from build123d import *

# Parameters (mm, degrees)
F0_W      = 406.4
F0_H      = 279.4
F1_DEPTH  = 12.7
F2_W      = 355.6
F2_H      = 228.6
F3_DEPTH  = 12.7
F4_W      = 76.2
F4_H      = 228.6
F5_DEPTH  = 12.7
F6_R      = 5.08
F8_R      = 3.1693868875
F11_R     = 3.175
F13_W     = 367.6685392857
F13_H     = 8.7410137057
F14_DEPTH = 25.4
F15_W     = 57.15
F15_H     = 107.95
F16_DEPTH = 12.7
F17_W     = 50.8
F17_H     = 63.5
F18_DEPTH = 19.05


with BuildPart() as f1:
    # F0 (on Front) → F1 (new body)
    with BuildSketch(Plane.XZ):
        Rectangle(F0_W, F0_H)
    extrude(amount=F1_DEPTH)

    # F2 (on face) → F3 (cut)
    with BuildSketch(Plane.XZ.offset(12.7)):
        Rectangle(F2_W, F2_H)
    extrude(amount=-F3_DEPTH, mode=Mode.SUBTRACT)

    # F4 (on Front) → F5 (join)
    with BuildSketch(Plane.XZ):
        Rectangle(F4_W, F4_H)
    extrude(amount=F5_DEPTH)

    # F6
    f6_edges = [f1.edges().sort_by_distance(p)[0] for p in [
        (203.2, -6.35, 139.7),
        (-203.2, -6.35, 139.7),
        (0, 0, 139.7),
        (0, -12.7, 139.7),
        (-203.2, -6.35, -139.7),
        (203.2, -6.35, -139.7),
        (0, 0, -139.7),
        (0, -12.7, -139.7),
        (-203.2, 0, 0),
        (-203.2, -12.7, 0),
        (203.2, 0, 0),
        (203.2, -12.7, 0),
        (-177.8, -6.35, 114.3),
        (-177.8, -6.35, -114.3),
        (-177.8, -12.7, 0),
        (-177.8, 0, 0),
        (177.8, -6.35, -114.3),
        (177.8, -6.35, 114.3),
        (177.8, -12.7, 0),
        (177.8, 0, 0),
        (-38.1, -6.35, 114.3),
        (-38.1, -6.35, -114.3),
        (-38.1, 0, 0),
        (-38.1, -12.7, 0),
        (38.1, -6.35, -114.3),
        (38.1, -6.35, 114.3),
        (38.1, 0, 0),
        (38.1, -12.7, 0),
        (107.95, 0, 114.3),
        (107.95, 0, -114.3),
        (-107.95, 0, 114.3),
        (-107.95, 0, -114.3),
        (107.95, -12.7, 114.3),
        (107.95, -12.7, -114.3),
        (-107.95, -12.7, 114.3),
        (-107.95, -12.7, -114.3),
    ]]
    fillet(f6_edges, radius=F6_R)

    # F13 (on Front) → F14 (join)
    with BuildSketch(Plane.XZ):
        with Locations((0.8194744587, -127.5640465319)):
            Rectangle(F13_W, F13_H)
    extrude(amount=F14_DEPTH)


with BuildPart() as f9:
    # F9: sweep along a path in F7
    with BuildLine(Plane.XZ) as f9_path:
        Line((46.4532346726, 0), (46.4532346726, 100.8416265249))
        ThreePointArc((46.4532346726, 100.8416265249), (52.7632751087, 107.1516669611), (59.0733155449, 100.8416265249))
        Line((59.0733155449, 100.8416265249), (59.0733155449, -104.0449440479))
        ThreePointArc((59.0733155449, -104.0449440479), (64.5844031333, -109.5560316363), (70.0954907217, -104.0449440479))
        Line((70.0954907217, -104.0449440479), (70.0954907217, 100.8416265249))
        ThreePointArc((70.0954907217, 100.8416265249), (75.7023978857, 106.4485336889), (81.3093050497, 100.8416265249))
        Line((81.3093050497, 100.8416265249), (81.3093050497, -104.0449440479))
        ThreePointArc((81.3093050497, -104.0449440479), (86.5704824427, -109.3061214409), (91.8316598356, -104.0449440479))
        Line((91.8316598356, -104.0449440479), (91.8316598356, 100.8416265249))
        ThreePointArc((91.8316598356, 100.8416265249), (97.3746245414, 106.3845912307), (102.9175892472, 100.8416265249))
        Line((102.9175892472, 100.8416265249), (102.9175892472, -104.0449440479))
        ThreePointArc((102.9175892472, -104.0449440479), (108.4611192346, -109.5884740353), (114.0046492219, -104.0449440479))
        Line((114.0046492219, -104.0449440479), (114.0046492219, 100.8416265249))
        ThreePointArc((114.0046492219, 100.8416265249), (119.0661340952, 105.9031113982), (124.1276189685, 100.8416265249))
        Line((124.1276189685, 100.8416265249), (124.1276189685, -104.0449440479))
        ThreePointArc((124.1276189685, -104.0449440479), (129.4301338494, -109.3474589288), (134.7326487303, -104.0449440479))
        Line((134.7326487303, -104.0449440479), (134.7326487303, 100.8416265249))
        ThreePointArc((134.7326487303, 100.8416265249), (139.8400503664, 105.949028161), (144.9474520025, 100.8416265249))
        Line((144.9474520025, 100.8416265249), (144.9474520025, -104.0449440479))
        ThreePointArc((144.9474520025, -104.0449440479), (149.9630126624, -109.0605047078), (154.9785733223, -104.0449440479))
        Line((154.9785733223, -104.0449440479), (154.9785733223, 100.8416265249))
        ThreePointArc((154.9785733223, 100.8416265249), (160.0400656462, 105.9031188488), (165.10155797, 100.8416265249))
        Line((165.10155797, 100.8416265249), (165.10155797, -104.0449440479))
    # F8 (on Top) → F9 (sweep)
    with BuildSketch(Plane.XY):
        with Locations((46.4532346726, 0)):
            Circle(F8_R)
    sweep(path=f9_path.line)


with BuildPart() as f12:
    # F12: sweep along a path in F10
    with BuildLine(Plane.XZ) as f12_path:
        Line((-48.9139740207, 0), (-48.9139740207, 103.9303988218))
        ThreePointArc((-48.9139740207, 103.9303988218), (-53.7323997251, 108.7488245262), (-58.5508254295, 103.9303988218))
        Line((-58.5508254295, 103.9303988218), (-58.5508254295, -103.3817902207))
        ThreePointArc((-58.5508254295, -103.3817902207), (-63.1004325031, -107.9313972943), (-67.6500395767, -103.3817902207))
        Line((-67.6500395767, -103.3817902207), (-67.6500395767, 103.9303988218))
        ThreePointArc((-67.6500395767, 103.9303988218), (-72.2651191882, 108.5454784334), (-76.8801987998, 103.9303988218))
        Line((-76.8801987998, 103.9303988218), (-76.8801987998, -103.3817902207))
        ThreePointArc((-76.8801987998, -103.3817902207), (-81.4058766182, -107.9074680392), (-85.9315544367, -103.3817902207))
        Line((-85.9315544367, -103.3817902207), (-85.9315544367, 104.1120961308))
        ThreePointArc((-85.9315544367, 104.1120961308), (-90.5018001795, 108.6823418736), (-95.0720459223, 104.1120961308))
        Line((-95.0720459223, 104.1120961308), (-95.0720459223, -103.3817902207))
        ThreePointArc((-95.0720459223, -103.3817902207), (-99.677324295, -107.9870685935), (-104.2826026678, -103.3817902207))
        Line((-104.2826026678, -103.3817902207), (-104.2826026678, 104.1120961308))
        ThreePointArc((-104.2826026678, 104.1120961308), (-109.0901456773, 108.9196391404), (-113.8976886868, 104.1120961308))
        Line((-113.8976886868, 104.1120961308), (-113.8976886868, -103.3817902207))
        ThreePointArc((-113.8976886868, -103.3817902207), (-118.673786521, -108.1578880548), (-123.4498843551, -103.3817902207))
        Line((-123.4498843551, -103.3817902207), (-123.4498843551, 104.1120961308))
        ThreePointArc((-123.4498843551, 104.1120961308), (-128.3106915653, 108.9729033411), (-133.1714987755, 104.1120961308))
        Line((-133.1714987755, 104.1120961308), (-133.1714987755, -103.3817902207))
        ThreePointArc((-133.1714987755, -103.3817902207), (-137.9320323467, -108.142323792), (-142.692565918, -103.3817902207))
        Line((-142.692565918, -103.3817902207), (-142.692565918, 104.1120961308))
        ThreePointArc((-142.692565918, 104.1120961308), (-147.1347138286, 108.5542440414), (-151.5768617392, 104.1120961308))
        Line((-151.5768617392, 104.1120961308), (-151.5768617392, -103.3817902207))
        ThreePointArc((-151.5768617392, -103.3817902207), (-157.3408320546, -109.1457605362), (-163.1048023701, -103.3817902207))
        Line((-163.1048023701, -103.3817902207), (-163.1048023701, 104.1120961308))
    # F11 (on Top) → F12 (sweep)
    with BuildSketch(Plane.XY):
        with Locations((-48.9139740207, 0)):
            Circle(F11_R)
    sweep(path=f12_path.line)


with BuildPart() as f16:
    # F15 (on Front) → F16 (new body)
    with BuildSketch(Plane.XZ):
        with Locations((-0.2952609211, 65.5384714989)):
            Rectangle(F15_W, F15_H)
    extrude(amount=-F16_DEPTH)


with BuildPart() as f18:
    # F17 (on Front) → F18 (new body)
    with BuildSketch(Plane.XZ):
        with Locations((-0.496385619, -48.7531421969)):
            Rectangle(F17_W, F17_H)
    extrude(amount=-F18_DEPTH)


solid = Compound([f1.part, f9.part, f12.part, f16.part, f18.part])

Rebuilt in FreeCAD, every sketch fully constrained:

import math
import FreeCAD as App
import Part
import Sketcher
Q = App.Units.Quantity

doc = App.newDocument("Part")
body = doc.addObject("PartDesign::Body", "Body")

# Sketch on XZ plane
sketch1 = doc.addObject("Sketcher::SketchObject", "Sketch")
body.addObject(sketch1)
sketch1.AttachmentSupport = (doc.XZ_Plane, [""])
sketch1.MapMode = "FlatFace"
sketch1.addGeometry(Part.LineSegment(App.Vector(-203.2, 139.7, 0), App.Vector(-203.2, -139.7, 0)), False)
sketch1.addGeometry(Part.LineSegment(App.Vector(-203.2, -139.7, 0), App.Vector(203.2, -139.7, 0)), False)
sketch1.addGeometry(Part.LineSegment(App.Vector(203.2, -139.7, 0), App.Vector(203.2, 139.7, 0)), False)
sketch1.addGeometry(Part.LineSegment(App.Vector(203.2, 139.7, 0), App.Vector(-203.2, 139.7, 0)), False)
sketch1.addConstraint(Sketcher.Constraint("Coincident", 0, 2, 1, 1))
sketch1.addConstraint(Sketcher.Constraint("Coincident", 1, 2, 2, 1))
sketch1.addConstraint(Sketcher.Constraint("Coincident", 2, 2, 3, 1))
sketch1.addConstraint(Sketcher.Constraint("Coincident", 3, 2, 0, 1))
sketch1.addConstraint(Sketcher.Constraint("Vertical", 0))
sketch1.addConstraint(Sketcher.Constraint("Horizontal", 1))
sketch1.addConstraint(Sketcher.Constraint("Vertical", 2))
sketch1.addConstraint(Sketcher.Constraint("Horizontal", 3))
sketch1.addConstraint(Sketcher.Constraint("Symmetric", 0, 2, 2, 2, -1, 1))
sketch1.addConstraint(Sketcher.Constraint("DistanceX", 1, 1, 1, 2, Q("16 in")))
sketch1.addConstraint(Sketcher.Constraint("DistanceY", 0, 2, 0, 1, Q("11 in")))
pad1 = doc.addObject("PartDesign::Pad", "Pad")
body.addObject(pad1)
pad1.Profile = sketch1
pad1.Length = Q("0.5 in")

# Sketch on XZ plane
sketch2 = doc.addObject("Sketcher::SketchObject", "Sketch001")
body.addObject(sketch2)
sketch2.AttachmentSupport = (doc.XZ_Plane, [""])
sketch2.MapMode = "FlatFace"
sketch2.AttachmentOffset = App.Placement(App.Vector(0, 0, 0.5 * 25.4), App.Rotation())
sketch2.addGeometry(Part.LineSegment(App.Vector(-177.8, 114.3, 0), App.Vector(-177.8, -114.3, 0)), False)
sketch2.addGeometry(Part.LineSegment(App.Vector(-177.8, -114.3, 0), App.Vector(177.8, -114.3, 0)), False)
sketch2.addGeometry(Part.LineSegment(App.Vector(177.8, -114.3, 0), App.Vector(177.8, 114.3, 0)), False)
sketch2.addGeometry(Part.LineSegment(App.Vector(177.8, 114.3, 0), App.Vector(-177.8, 114.3, 0)), False)
sketch2.addConstraint(Sketcher.Constraint("Coincident", 0, 2, 1, 1))
sketch2.addConstraint(Sketcher.Constraint("Coincident", 1, 2, 2, 1))
sketch2.addConstraint(Sketcher.Constraint("Coincident", 2, 2, 3, 1))
sketch2.addConstraint(Sketcher.Constraint("Coincident", 3, 2, 0, 1))
sketch2.addConstraint(Sketcher.Constraint("Vertical", 0))
sketch2.addConstraint(Sketcher.Constraint("Horizontal", 1))
sketch2.addConstraint(Sketcher.Constraint("Vertical", 2))
sketch2.addConstraint(Sketcher.Constraint("Horizontal", 3))
sketch2.addConstraint(Sketcher.Constraint("Symmetric", 0, 2, 2, 2, -1, 1))
sketch2.addConstraint(Sketcher.Constraint("DistanceX", 1, 1, 1, 2, Q("14 in")))
sketch2.addConstraint(Sketcher.Constraint("DistanceY", 0, 2, 0, 1, Q("9 in")))
pocket1 = doc.addObject("PartDesign::Pocket", "Pocket")
body.addObject(pocket1)
pocket1.Profile = sketch2
pocket1.Length = Q("0.5 in")

# Sketch on XZ plane
sketch3 = doc.addObject("Sketcher::SketchObject", "Sketch002")
body.addObject(sketch3)
sketch3.AttachmentSupport = (doc.XZ_Plane, [""])
sketch3.MapMode = "FlatFace"
sketch3.addGeometry(Part.LineSegment(App.Vector(-38.1, 114.3, 0), App.Vector(-38.1, -114.3, 0)), False)
sketch3.addGeometry(Part.LineSegment(App.Vector(-38.1, -114.3, 0), App.Vector(38.1, -114.3, 0)), False)
sketch3.addGeometry(Part.LineSegment(App.Vector(38.1, -114.3, 0), App.Vector(38.1, 114.3, 0)), False)
sketch3.addGeometry(Part.LineSegment(App.Vector(38.1, 114.3, 0), App.Vector(-38.1, 114.3, 0)), False)
sketch3.addConstraint(Sketcher.Constraint("Coincident", 0, 2, 1, 1))
sketch3.addConstraint(Sketcher.Constraint("Coincident", 1, 2, 2, 1))
sketch3.addConstraint(Sketcher.Constraint("Coincident", 2, 2, 3, 1))
sketch3.addConstraint(Sketcher.Constraint("Coincident", 3, 2, 0, 1))
sketch3.addConstraint(Sketcher.Constraint("Vertical", 0))
sketch3.addConstraint(Sketcher.Constraint("Horizontal", 1))
sketch3.addConstraint(Sketcher.Constraint("Vertical", 2))
sketch3.addConstraint(Sketcher.Constraint("Horizontal", 3))
sketch3.addConstraint(Sketcher.Constraint("Symmetric", 0, 2, 2, 2, -1, 1))
sketch3.addConstraint(Sketcher.Constraint("DistanceX", 1, 1, 1, 2, Q("3 in")))
sketch3.addConstraint(Sketcher.Constraint("DistanceY", 0, 2, 0, 1, Q("9 in")))
pad2 = doc.addObject("PartDesign::Pad", "Pad001")
body.addObject(pad2)
pad2.Profile = sketch3
pad2.Length = Q("0.5 in")
doc.recompute()

fillet = doc.addObject("PartDesign::Fillet", "Fillet")
body.addObject(fillet)
fillet.Base = (pad2, ["Edge1"])
fillet.UseAllEdges = True
fillet.Radius = Q("0.2 in")

# Sketch on XZ plane
sketch4 = doc.addObject("Sketcher::SketchObject", "Sketch003")
body.addObject(sketch4)
sketch4.AttachmentSupport = (doc.XZ_Plane, [""])
sketch4.MapMode = "FlatFace"
sketch4.addGeometry(Part.LineSegment(App.Vector(-183.014795, -123.19354, 0), App.Vector(-183.014795, -131.934553, 0)), False)
sketch4.addGeometry(Part.LineSegment(App.Vector(-183.014795, -131.934553, 0), App.Vector(184.653744, -131.934553, 0)), False)
sketch4.addGeometry(Part.LineSegment(App.Vector(184.653744, -131.934553, 0), App.Vector(184.653744, -123.19354, 0)), False)
sketch4.addGeometry(Part.LineSegment(App.Vector(184.653744, -123.19354, 0), App.Vector(-183.014795, -123.19354, 0)), False)
sketch4.addConstraint(Sketcher.Constraint("Coincident", 0, 2, 1, 1))
sketch4.addConstraint(Sketcher.Constraint("Coincident", 1, 2, 2, 1))
sketch4.addConstraint(Sketcher.Constraint("Coincident", 2, 2, 3, 1))
sketch4.addConstraint(Sketcher.Constraint("Coincident", 3, 2, 0, 1))
sketch4.addConstraint(Sketcher.Constraint("Vertical", 0))
sketch4.addConstraint(Sketcher.Constraint("Horizontal", 1))
sketch4.addConstraint(Sketcher.Constraint("Vertical", 2))
sketch4.addConstraint(Sketcher.Constraint("Horizontal", 3))
sketch4.addConstraint(Sketcher.Constraint("DistanceX", 1, 1, 1, 2, 367.668539))
sketch4.addConstraint(Sketcher.Constraint("DistanceY", 0, 2, 0, 1, 8.741014))
sketch4.addConstraint(Sketcher.Constraint("DistanceY", 2, 2, -1, 1, 123.19354))
sketch4.addConstraint(Sketcher.Constraint("DistanceX", 0, 2, -1, 1, 183.014795))
pad3 = doc.addObject("PartDesign::Pad", "Pad002")
body.addObject(pad3)
pad3.Profile = sketch4
pad3.Length = Q("1 in")
body2 = doc.addObject("PartDesign::Body", "Body001")

# Sketch on XY plane
sketch5 = doc.addObject("Sketcher::SketchObject", "Sketch004")
body2.addObject(sketch5)
sketch5.AttachmentSupport = (doc.getObject("XY_Plane001"), [""])
sketch5.MapMode = "FlatFace"
sketch5.addGeometry(Part.Circle(App.Vector(46.453235, 0, 0), App.Vector(0, 0, 1), 3.169387), False)
sketch5.addConstraint(Sketcher.Constraint("PointOnObject", 0, 3, -1))
sketch5.addConstraint(Sketcher.Constraint("Diameter", 0, 6.338774))
sketch5.addConstraint(Sketcher.Constraint("DistanceX", -1, 1, 0, 3, 46.453235))

# Sketch on XZ plane
sketch6 = doc.addObject("Sketcher::SketchObject", "Sketch005")
body2.addObject(sketch6)
sketch6.AttachmentSupport = (doc.getObject("XZ_Plane001"), [""])
sketch6.MapMode = "FlatFace"
sketch6.addGeometry(Part.LineSegment(App.Vector(46.453235, 0, 0), App.Vector(46.453235, 100.841627, 0)), False)
sketch6.addGeometry(Part.ArcOfCircle(Part.Circle(App.Vector(52.763275, 100.841627, 0), App.Vector(0, 0, 1), 6.31004), math.radians(0), math.radians(180)), False)
sketch6.addGeometry(Part.LineSegment(App.Vector(59.073316, 100.841627, 0), App.Vector(59.073316, -104.044944, 0)), False)
sketch6.addGeometry(Part.ArcOfCircle(Part.Circle(App.Vector(64.584403, -104.044944, 0), App.Vector(0, 0, 1), 5.511088), math.radians(180), math.radians(360)), False)
sketch6.addGeometry(Part.LineSegment(App.Vector(70.095491, -104.044944, 0), App.Vector(70.095491, 100.841627, 0)), False)
sketch6.addGeometry(Part.ArcOfCircle(Part.Circle(App.Vector(75.702398, 100.841627, 0), App.Vector(0, 0, 1), 5.606907), math.radians(0), math.radians(180)), False)
sketch6.addGeometry(Part.LineSegment(App.Vector(81.309305, 100.841627, 0), App.Vector(81.309305, -104.044944, 0)), False)
sketch6.addGeometry(Part.ArcOfCircle(Part.Circle(App.Vector(86.570482, -104.044944, 0), App.Vector(0, 0, 1), 5.261177), math.radians(180), math.radians(360)), False)
sketch6.addGeometry(Part.LineSegment(App.Vector(91.83166, -104.044944, 0), App.Vector(91.83166, 100.841627, 0)), False)
sketch6.addGeometry(Part.ArcOfCircle(Part.Circle(App.Vector(97.374625, 100.841627, 0), App.Vector(0, 0, 1), 5.542965), math.radians(0), math.radians(180)), False)
sketch6.addGeometry(Part.LineSegment(App.Vector(102.917589, 100.841627, 0), App.Vector(102.917589, -104.044944, 0)), False)
sketch6.addGeometry(Part.ArcOfCircle(Part.Circle(App.Vector(108.461119, -104.044944, 0), App.Vector(0, 0, 1), 5.54353), math.radians(180), math.radians(360)), False)
sketch6.addGeometry(Part.LineSegment(App.Vector(114.004649, -104.044944, 0), App.Vector(114.004649, 100.841627, 0)), False)
sketch6.addGeometry(Part.ArcOfCircle(Part.Circle(App.Vector(119.066134, 100.841627, 0), App.Vector(0, 0, 1), 5.061485), math.radians(0), math.radians(180)), False)
sketch6.addGeometry(Part.LineSegment(App.Vector(124.127619, 100.841627, 0), App.Vector(124.127619, -104.044944, 0)), False)
sketch6.addGeometry(Part.ArcOfCircle(Part.Circle(App.Vector(129.430134, -104.044944, 0), App.Vector(0, 0, 1), 5.302515), math.radians(180), math.radians(360)), False)
sketch6.addGeometry(Part.LineSegment(App.Vector(134.732649, -104.044944, 0), App.Vector(134.732649, 100.841627, 0)), False)
sketch6.addGeometry(Part.ArcOfCircle(Part.Circle(App.Vector(139.84005, 100.841627, 0), App.Vector(0, 0, 1), 5.107402), math.radians(0), math.radians(180)), False)
sketch6.addGeometry(Part.LineSegment(App.Vector(144.947452, 100.841627, 0), App.Vector(144.947452, -104.044944, 0)), False)
sketch6.addGeometry(Part.ArcOfCircle(Part.Circle(App.Vector(149.963013, -104.044944, 0), App.Vector(0, 0, 1), 5.015561), math.radians(180), math.radians(360)), False)
sketch6.addGeometry(Part.LineSegment(App.Vector(154.978573, -104.044944, 0), App.Vector(154.978573, 100.841627, 0)), False)
sketch6.addGeometry(Part.ArcOfCircle(Part.Circle(App.Vector(160.040066, 100.841627, 0), App.Vector(0, 0, 1), 5.061492), math.radians(0), math.radians(180)), False)
sketch6.addGeometry(Part.LineSegment(App.Vector(165.101558, 100.841627, 0), App.Vector(165.101558, -104.044944, 0)), False)
sketch6.addConstraint(Sketcher.Constraint("Tangent", 0, 2, 1, 2))
sketch6.addConstraint(Sketcher.Constraint("Tangent", 1, 1, 2, 1))
sketch6.addConstraint(Sketcher.Constraint("Tangent", 2, 2, 3, 1))
sketch6.addConstraint(Sketcher.Constraint("Tangent", 3, 2, 4, 1))
sketch6.addConstraint(Sketcher.Constraint("Tangent", 4, 2, 5, 2))
sketch6.addConstraint(Sketcher.Constraint("Tangent", 5, 1, 6, 1))
sketch6.addConstraint(Sketcher.Constraint("Tangent", 6, 2, 7, 1))
sketch6.addConstraint(Sketcher.Constraint("Tangent", 7, 2, 8, 1))
sketch6.addConstraint(Sketcher.Constraint("Tangent", 8, 2, 9, 2))
sketch6.addConstraint(Sketcher.Constraint("Tangent", 9, 1, 10, 1))
sketch6.addConstraint(Sketcher.Constraint("Tangent", 10, 2, 11, 1))
sketch6.addConstraint(Sketcher.Constraint("Tangent", 11, 2, 12, 1))
sketch6.addConstraint(Sketcher.Constraint("Tangent", 12, 2, 13, 2))
sketch6.addConstraint(Sketcher.Constraint("Tangent", 13, 1, 14, 1))
sketch6.addConstraint(Sketcher.Constraint("Tangent", 14, 2, 15, 1))
sketch6.addConstraint(Sketcher.Constraint("Tangent", 15, 2, 16, 1))
sketch6.addConstraint(Sketcher.Constraint("Tangent", 16, 2, 17, 2))
sketch6.addConstraint(Sketcher.Constraint("Tangent", 17, 1, 18, 1))
sketch6.addConstraint(Sketcher.Constraint("Tangent", 18, 2, 19, 1))
sketch6.addConstraint(Sketcher.Constraint("Tangent", 19, 2, 20, 1))
sketch6.addConstraint(Sketcher.Constraint("Tangent", 20, 2, 21, 2))
sketch6.addConstraint(Sketcher.Constraint("Tangent", 21, 1, 22, 1))
sketch6.addConstraint(Sketcher.Constraint("Vertical", 0))
sketch6.addConstraint(Sketcher.Constraint("Vertical", 2))
sketch6.addConstraint(Sketcher.Constraint("Vertical", 4))
sketch6.addConstraint(Sketcher.Constraint("Vertical", 6))
sketch6.addConstraint(Sketcher.Constraint("Vertical", 8))
sketch6.addConstraint(Sketcher.Constraint("Vertical", 10))
sketch6.addConstraint(Sketcher.Constraint("Vertical", 12))
sketch6.addConstraint(Sketcher.Constraint("Vertical", 14))
sketch6.addConstraint(Sketcher.Constraint("Vertical", 16))
sketch6.addConstraint(Sketcher.Constraint("Vertical", 18))
sketch6.addConstraint(Sketcher.Constraint("Vertical", 20))
sketch6.addConstraint(Sketcher.Constraint("Vertical", 22))
sketch6.addConstraint(Sketcher.Constraint("PointOnObject", 0, 1, -1))
sketch6.addConstraint(Sketcher.Constraint("Horizontal", 1, 3, 5, 3))
sketch6.addConstraint(Sketcher.Constraint("Horizontal", 3, 3, 7, 3))
sketch6.addConstraint(Sketcher.Constraint("Horizontal", 5, 3, 9, 3))
sketch6.addConstraint(Sketcher.Constraint("Horizontal", 7, 3, 11, 3))
sketch6.addConstraint(Sketcher.Constraint("Horizontal", 9, 3, 13, 3))
sketch6.addConstraint(Sketcher.Constraint("Horizontal", 11, 3, 15, 3))
sketch6.addConstraint(Sketcher.Constraint("Horizontal", 13, 3, 17, 3))
sketch6.addConstraint(Sketcher.Constraint("Horizontal", 15, 3, 19, 3))
sketch6.addConstraint(Sketcher.Constraint("Horizontal", 17, 3, 21, 3))
sketch6.addConstraint(Sketcher.Constraint("Horizontal", 19, 2, 22, 2))
sketch6.addConstraint(Sketcher.Constraint("Radius", 17, 5.107402))
sketch6.addConstraint(Sketcher.Constraint("Radius", 1, 6.31004))
sketch6.addConstraint(Sketcher.Constraint("Radius", 11, 5.54353))
sketch6.addConstraint(Sketcher.Constraint("Radius", 19, 5.015561))
sketch6.addConstraint(Sketcher.Constraint("Radius", 3, 5.511088))
sketch6.addConstraint(Sketcher.Constraint("Radius", 5, 5.606907))
sketch6.addConstraint(Sketcher.Constraint("Radius", 7, 5.261177))
sketch6.addConstraint(Sketcher.Constraint("Radius", 9, 5.542965))
sketch6.addConstraint(Sketcher.Constraint("Radius", 13, 5.061485))
sketch6.addConstraint(Sketcher.Constraint("Radius", 15, 5.302515))
sketch6.addConstraint(Sketcher.Constraint("Radius", 21, 5.061492))
sketch6.addConstraint(Sketcher.Constraint("DistanceY", 2, 2, 2, 1, 204.886571))
sketch6.addConstraint(Sketcher.Constraint("DistanceY", 0, 1, 0, 2, 100.841627))
sketch6.addConstraint(Sketcher.Constraint("DistanceX", -1, 1, 11, 3, 108.461119))
doc.recompute()

additivepipe = doc.addObject("PartDesign::AdditivePipe", "AdditivePipe")
body2.addObject(additivepipe)
additivepipe.Profile = sketch5
additivepipe.Spine = (sketch6, ["Edge1", "Edge2", "Edge3", "Edge4", "Edge5", "Edge6", "Edge7", "Edge8", "Edge9", "Edge10", "Edge11", "Edge12", "Edge13", "Edge14", "Edge15", "Edge16", "Edge17", "Edge18", "Edge19", "Edge20", "Edge21", "Edge22", "Edge23"])
body3 = doc.addObject("PartDesign::Body", "Body002")

# Sketch on XY plane
sketch7 = doc.addObject("Sketcher::SketchObject", "Sketch006")
body3.addObject(sketch7)
sketch7.AttachmentSupport = (doc.getObject("XY_Plane002"), [""])
sketch7.MapMode = "FlatFace"
sketch7.addGeometry(Part.Circle(App.Vector(-48.913974, 0, 0), App.Vector(0, 0, 1), 3.175), False)
sketch7.addConstraint(Sketcher.Constraint("PointOnObject", 0, 3, -1))
sketch7.addConstraint(Sketcher.Constraint("Diameter", 0, Q("0.25 in")))
sketch7.addConstraint(Sketcher.Constraint("DistanceX", 0, 3, -1, 1, 48.913974))

# Sketch on XZ plane
sketch8 = doc.addObject("Sketcher::SketchObject", "Sketch007")
body3.addObject(sketch8)
sketch8.AttachmentSupport = (doc.getObject("XZ_Plane002"), [""])
sketch8.MapMode = "FlatFace"
sketch8.addGeometry(Part.LineSegment(App.Vector(-48.913974, 0, 0), App.Vector(-48.913974, 103.930399, 0)), False)
sketch8.addGeometry(Part.ArcOfCircle(Part.Circle(App.Vector(-53.7324, 103.930399, 0), App.Vector(0, 0, 1), 4.818426), math.radians(0), math.radians(180)), False)
sketch8.addGeometry(Part.LineSegment(App.Vector(-58.550825, 103.930399, 0), App.Vector(-58.550825, -103.38179, 0)), False)
sketch8.addGeometry(Part.ArcOfCircle(Part.Circle(App.Vector(-63.100433, -103.38179, 0), App.Vector(0, 0, 1), 4.549607), math.radians(180), math.radians(360)), False)
sketch8.addGeometry(Part.LineSegment(App.Vector(-67.65004, -103.38179, 0), App.Vector(-67.65004, 103.930399, 0)), False)
sketch8.addGeometry(Part.ArcOfCircle(Part.Circle(App.Vector(-72.265119, 103.930399, 0), App.Vector(0, 0, 1), 4.61508), math.radians(0), math.radians(180)), False)
sketch8.addGeometry(Part.LineSegment(App.Vector(-76.880199, 103.930399, 0), App.Vector(-76.880199, -103.38179, 0)), False)
sketch8.addGeometry(Part.ArcOfCircle(Part.Circle(App.Vector(-81.405877, -103.38179, 0), App.Vector(0, 0, 1), 4.525678), math.radians(180), math.radians(360)), False)
sketch8.addGeometry(Part.LineSegment(App.Vector(-85.931554, -103.38179, 0), App.Vector(-85.931554, 104.112096, 0)), False)
sketch8.addGeometry(Part.ArcOfCircle(Part.Circle(App.Vector(-90.5018, 104.112096, 0), App.Vector(0, 0, 1), 4.570246), math.radians(0), math.radians(180)), False)
sketch8.addGeometry(Part.LineSegment(App.Vector(-95.072046, 104.112096, 0), App.Vector(-95.072046, -103.38179, 0)), False)
sketch8.addGeometry(Part.ArcOfCircle(Part.Circle(App.Vector(-99.677324, -103.38179, 0), App.Vector(0, 0, 1), 4.605278), math.radians(180), math.radians(360)), False)
sketch8.addGeometry(Part.LineSegment(App.Vector(-104.282603, -103.38179, 0), App.Vector(-104.282603, 104.112096, 0)), False)
sketch8.addGeometry(Part.ArcOfCircle(Part.Circle(App.Vector(-109.090146, 104.112096, 0), App.Vector(0, 0, 1), 4.807543), math.radians(0), math.radians(180)), False)
sketch8.addGeometry(Part.LineSegment(App.Vector(-113.897689, 104.112096, 0), App.Vector(-113.897689, -103.38179, 0)), False)
sketch8.addGeometry(Part.ArcOfCircle(Part.Circle(App.Vector(-118.673787, -103.38179, 0), App.Vector(0, 0, 1), 4.776098), math.radians(180), math.radians(360)), False)
sketch8.addGeometry(Part.LineSegment(App.Vector(-123.449884, -103.38179, 0), App.Vector(-123.449884, 104.112096, 0)), False)
sketch8.addGeometry(Part.ArcOfCircle(Part.Circle(App.Vector(-128.310692, 104.112096, 0), App.Vector(0, 0, 1), 4.860807), math.radians(0), math.radians(180)), False)
sketch8.addGeometry(Part.LineSegment(App.Vector(-133.171499, 104.112096, 0), App.Vector(-133.171499, -103.38179, 0)), False)
sketch8.addGeometry(Part.ArcOfCircle(Part.Circle(App.Vector(-137.932032, -103.38179, 0), App.Vector(0, 0, 1), 4.760534), math.radians(180), math.radians(360)), False)
sketch8.addGeometry(Part.LineSegment(App.Vector(-142.692566, -103.38179, 0), App.Vector(-142.692566, 104.112096, 0)), False)
sketch8.addGeometry(Part.ArcOfCircle(Part.Circle(App.Vector(-147.134714, 104.112096, 0), App.Vector(0, 0, 1), 4.442148), math.radians(0), math.radians(180)), False)
sketch8.addGeometry(Part.LineSegment(App.Vector(-151.576862, 104.112096, 0), App.Vector(-151.576862, -103.38179, 0)), False)
sketch8.addGeometry(Part.ArcOfCircle(Part.Circle(App.Vector(-157.340832, -103.38179, 0), App.Vector(0, 0, 1), 5.76397), math.radians(180), math.radians(360)), False)
sketch8.addGeometry(Part.LineSegment(App.Vector(-163.104802, -103.38179, 0), App.Vector(-163.104802, 104.112096, 0)), False)
sketch8.addConstraint(Sketcher.Constraint("Tangent", 0, 2, 1, 1))
sketch8.addConstraint(Sketcher.Constraint("Tangent", 1, 2, 2, 1))
sketch8.addConstraint(Sketcher.Constraint("Tangent", 2, 2, 3, 2))
sketch8.addConstraint(Sketcher.Constraint("Tangent", 3, 1, 4, 1))
sketch8.addConstraint(Sketcher.Constraint("Tangent", 4, 2, 5, 1))
sketch8.addConstraint(Sketcher.Constraint("Tangent", 5, 2, 6, 1))
sketch8.addConstraint(Sketcher.Constraint("Tangent", 6, 2, 7, 2))
sketch8.addConstraint(Sketcher.Constraint("Tangent", 7, 1, 8, 1))
sketch8.addConstraint(Sketcher.Constraint("Tangent", 8, 2, 9, 1))
sketch8.addConstraint(Sketcher.Constraint("Tangent", 9, 2, 10, 1))
sketch8.addConstraint(Sketcher.Constraint("Tangent", 10, 2, 11, 2))
sketch8.addConstraint(Sketcher.Constraint("Tangent", 11, 1, 12, 1))
sketch8.addConstraint(Sketcher.Constraint("Tangent", 12, 2, 13, 1))
sketch8.addConstraint(Sketcher.Constraint("Tangent", 13, 2, 14, 1))
sketch8.addConstraint(Sketcher.Constraint("Tangent", 14, 2, 15, 2))
sketch8.addConstraint(Sketcher.Constraint("Tangent", 15, 1, 16, 1))
sketch8.addConstraint(Sketcher.Constraint("Tangent", 16, 2, 17, 1))
sketch8.addConstraint(Sketcher.Constraint("Tangent", 17, 2, 18, 1))
sketch8.addConstraint(Sketcher.Constraint("Tangent", 18, 2, 19, 2))
sketch8.addConstraint(Sketcher.Constraint("Tangent", 19, 1, 20, 1))
sketch8.addConstraint(Sketcher.Constraint("Tangent", 20, 2, 21, 1))
sketch8.addConstraint(Sketcher.Constraint("Tangent", 21, 2, 22, 1))
sketch8.addConstraint(Sketcher.Constraint("Tangent", 22, 2, 23, 2))
sketch8.addConstraint(Sketcher.Constraint("Tangent", 23, 1, 24, 1))
sketch8.addConstraint(Sketcher.Constraint("Vertical", 0))
sketch8.addConstraint(Sketcher.Constraint("Vertical", 2))
sketch8.addConstraint(Sketcher.Constraint("Vertical", 4))
sketch8.addConstraint(Sketcher.Constraint("Vertical", 6))
sketch8.addConstraint(Sketcher.Constraint("Vertical", 8))
sketch8.addConstraint(Sketcher.Constraint("Vertical", 10))
sketch8.addConstraint(Sketcher.Constraint("Vertical", 12))
sketch8.addConstraint(Sketcher.Constraint("Vertical", 14))
sketch8.addConstraint(Sketcher.Constraint("Vertical", 16))
sketch8.addConstraint(Sketcher.Constraint("Vertical", 18))
sketch8.addConstraint(Sketcher.Constraint("Vertical", 20))
sketch8.addConstraint(Sketcher.Constraint("Vertical", 22))
sketch8.addConstraint(Sketcher.Constraint("Vertical", 24))
sketch8.addConstraint(Sketcher.Constraint("PointOnObject", 0, 1, -1))
sketch8.addConstraint(Sketcher.Constraint("Horizontal", 1, 3, 5, 3))
sketch8.addConstraint(Sketcher.Constraint("Horizontal", 3, 3, 7, 3))
sketch8.addConstraint(Sketcher.Constraint("Horizontal", 7, 3, 11, 3))
sketch8.addConstraint(Sketcher.Constraint("Horizontal", 9, 3, 13, 3))
sketch8.addConstraint(Sketcher.Constraint("Horizontal", 11, 3, 15, 3))
sketch8.addConstraint(Sketcher.Constraint("Horizontal", 13, 3, 17, 3))
sketch8.addConstraint(Sketcher.Constraint("Horizontal", 15, 3, 19, 3))
sketch8.addConstraint(Sketcher.Constraint("Horizontal", 17, 3, 21, 3))
sketch8.addConstraint(Sketcher.Constraint("Horizontal", 19, 3, 23, 3))
sketch8.addConstraint(Sketcher.Constraint("Horizontal", 21, 2, 24, 2))
sketch8.addConstraint(Sketcher.Constraint("Radius", 5, 4.61508))
sketch8.addConstraint(Sketcher.Constraint("Radius", 11, 4.605278))
sketch8.addConstraint(Sketcher.Constraint("Radius", 23, 5.76397))
sketch8.addConstraint(Sketcher.Constraint("DistanceY", 0, 1, 0, 2, 103.930399))
sketch8.addConstraint(Sketcher.Constraint("Radius", 1, 4.818426))
sketch8.addConstraint(Sketcher.Constraint("Radius", 3, 4.549607))
sketch8.addConstraint(Sketcher.Constraint("Radius", 7, 4.525678))
sketch8.addConstraint(Sketcher.Constraint("Radius", 9, 4.570246))
sketch8.addConstraint(Sketcher.Constraint("Radius", 13, 4.807543))
sketch8.addConstraint(Sketcher.Constraint("Radius", 15, 4.776098))
sketch8.addConstraint(Sketcher.Constraint("Radius", 17, 4.860807))
sketch8.addConstraint(Sketcher.Constraint("Radius", 19, 4.760534))
sketch8.addConstraint(Sketcher.Constraint("Radius", 21, 4.442148))
sketch8.addConstraint(Sketcher.Constraint("DistanceY", 2, 2, 2, 1, 207.312189))
sketch8.addConstraint(Sketcher.Constraint("DistanceX", 1, 3, -1, 1, 53.7324))
sketch8.addConstraint(Sketcher.Constraint("DistanceY", 8, 1, 8, 2, 207.493886))
doc.recompute()

additivepipe2 = doc.addObject("PartDesign::AdditivePipe", "AdditivePipe001")
body3.addObject(additivepipe2)
additivepipe2.Profile = sketch7
additivepipe2.Spine = (sketch8, ["Edge1", "Edge2", "Edge3", "Edge4", "Edge5", "Edge6", "Edge7", "Edge8", "Edge9", "Edge10", "Edge11", "Edge12", "Edge13", "Edge14", "Edge15", "Edge16", "Edge17", "Edge18", "Edge19", "Edge20", "Edge21", "Edge22", "Edge23", "Edge24", "Edge25"])
body4 = doc.addObject("PartDesign::Body", "Body003")

# Sketch on XZ plane
sketch9 = doc.addObject("Sketcher::SketchObject", "Sketch008")
body4.addObject(sketch9)
sketch9.AttachmentSupport = (doc.getObject("XZ_Plane003"), [""])
sketch9.MapMode = "FlatFace"
sketch9.addGeometry(Part.LineSegment(App.Vector(-28.870261, 119.513471, 0), App.Vector(-28.870261, 11.563471, 0)), False)
sketch9.addGeometry(Part.LineSegment(App.Vector(-28.870261, 11.563471, 0), App.Vector(28.279739, 11.563471, 0)), False)
sketch9.addGeometry(Part.LineSegment(App.Vector(28.279739, 11.563471, 0), App.Vector(28.279739, 119.513471, 0)), False)
sketch9.addGeometry(Part.LineSegment(App.Vector(28.279739, 119.513471, 0), App.Vector(-28.870261, 119.513471, 0)), False)
sketch9.addConstraint(Sketcher.Constraint("Coincident", 0, 2, 1, 1))
sketch9.addConstraint(Sketcher.Constraint("Coincident", 1, 2, 2, 1))
sketch9.addConstraint(Sketcher.Constraint("Coincident", 2, 2, 3, 1))
sketch9.addConstraint(Sketcher.Constraint("Coincident", 3, 2, 0, 1))
sketch9.addConstraint(Sketcher.Constraint("Vertical", 0))
sketch9.addConstraint(Sketcher.Constraint("Horizontal", 1))
sketch9.addConstraint(Sketcher.Constraint("Vertical", 2))
sketch9.addConstraint(Sketcher.Constraint("Horizontal", 3))
sketch9.addConstraint(Sketcher.Constraint("DistanceX", 1, 1, 1, 2, Q("2.25 in")))
sketch9.addConstraint(Sketcher.Constraint("DistanceY", 0, 2, 0, 1, Q("4.25 in")))
sketch9.addConstraint(Sketcher.Constraint("DistanceX", 0, 2, -1, 1, 28.870261))
sketch9.addConstraint(Sketcher.Constraint("DistanceY", -1, 1, 0, 2, 11.563471))
pad4 = doc.addObject("PartDesign::Pad", "Pad003")
body4.addObject(pad4)
pad4.Profile = sketch9
pad4.Length = Q("0.5 in")
pad4.Reversed = True
body5 = doc.addObject("PartDesign::Body", "Body004")

# Sketch on XZ plane
sketch10 = doc.addObject("Sketcher::SketchObject", "Sketch009")
body5.addObject(sketch10)
sketch10.AttachmentSupport = (doc.getObject("XZ_Plane004"), [""])
sketch10.MapMode = "FlatFace"
sketch10.addGeometry(Part.LineSegment(App.Vector(-25.896386, -17.003142, 0), App.Vector(-25.896386, -80.503142, 0)), False)
sketch10.addGeometry(Part.LineSegment(App.Vector(-25.896386, -80.503142, 0), App.Vector(24.903614, -80.503142, 0)), False)
sketch10.addGeometry(Part.LineSegment(App.Vector(24.903614, -80.503142, 0), App.Vector(24.903614, -17.003142, 0)), False)
sketch10.addGeometry(Part.LineSegment(App.Vector(24.903614, -17.003142, 0), App.Vector(-25.896386, -17.003142, 0)), False)
sketch10.addConstraint(Sketcher.Constraint("Coincident", 0, 2, 1, 1))
sketch10.addConstraint(Sketcher.Constraint("Coincident", 1, 2, 2, 1))
sketch10.addConstraint(Sketcher.Constraint("Coincident", 2, 2, 3, 1))
sketch10.addConstraint(Sketcher.Constraint("Coincident", 3, 2, 0, 1))
sketch10.addConstraint(Sketcher.Constraint("Vertical", 0))
sketch10.addConstraint(Sketcher.Constraint("Horizontal", 1))
sketch10.addConstraint(Sketcher.Constraint("Vertical", 2))
sketch10.addConstraint(Sketcher.Constraint("Horizontal", 3))
sketch10.addConstraint(Sketcher.Constraint("DistanceX", 1, 1, 1, 2, Q("2 in")))
sketch10.addConstraint(Sketcher.Constraint("DistanceY", 0, 2, 0, 1, Q("2.5 in")))
sketch10.addConstraint(Sketcher.Constraint("DistanceX", 0, 2, -1, 1, 25.896386))
sketch10.addConstraint(Sketcher.Constraint("DistanceY", 0, 2, -1, 1, 80.503142))
pad5 = doc.addObject("PartDesign::Pad", "Pad004")
body5.addObject(pad5)
pad5.Profile = sketch10
pad5.Length = Q("0.75 in")
pad5.Reversed = True

doc.recompute()
